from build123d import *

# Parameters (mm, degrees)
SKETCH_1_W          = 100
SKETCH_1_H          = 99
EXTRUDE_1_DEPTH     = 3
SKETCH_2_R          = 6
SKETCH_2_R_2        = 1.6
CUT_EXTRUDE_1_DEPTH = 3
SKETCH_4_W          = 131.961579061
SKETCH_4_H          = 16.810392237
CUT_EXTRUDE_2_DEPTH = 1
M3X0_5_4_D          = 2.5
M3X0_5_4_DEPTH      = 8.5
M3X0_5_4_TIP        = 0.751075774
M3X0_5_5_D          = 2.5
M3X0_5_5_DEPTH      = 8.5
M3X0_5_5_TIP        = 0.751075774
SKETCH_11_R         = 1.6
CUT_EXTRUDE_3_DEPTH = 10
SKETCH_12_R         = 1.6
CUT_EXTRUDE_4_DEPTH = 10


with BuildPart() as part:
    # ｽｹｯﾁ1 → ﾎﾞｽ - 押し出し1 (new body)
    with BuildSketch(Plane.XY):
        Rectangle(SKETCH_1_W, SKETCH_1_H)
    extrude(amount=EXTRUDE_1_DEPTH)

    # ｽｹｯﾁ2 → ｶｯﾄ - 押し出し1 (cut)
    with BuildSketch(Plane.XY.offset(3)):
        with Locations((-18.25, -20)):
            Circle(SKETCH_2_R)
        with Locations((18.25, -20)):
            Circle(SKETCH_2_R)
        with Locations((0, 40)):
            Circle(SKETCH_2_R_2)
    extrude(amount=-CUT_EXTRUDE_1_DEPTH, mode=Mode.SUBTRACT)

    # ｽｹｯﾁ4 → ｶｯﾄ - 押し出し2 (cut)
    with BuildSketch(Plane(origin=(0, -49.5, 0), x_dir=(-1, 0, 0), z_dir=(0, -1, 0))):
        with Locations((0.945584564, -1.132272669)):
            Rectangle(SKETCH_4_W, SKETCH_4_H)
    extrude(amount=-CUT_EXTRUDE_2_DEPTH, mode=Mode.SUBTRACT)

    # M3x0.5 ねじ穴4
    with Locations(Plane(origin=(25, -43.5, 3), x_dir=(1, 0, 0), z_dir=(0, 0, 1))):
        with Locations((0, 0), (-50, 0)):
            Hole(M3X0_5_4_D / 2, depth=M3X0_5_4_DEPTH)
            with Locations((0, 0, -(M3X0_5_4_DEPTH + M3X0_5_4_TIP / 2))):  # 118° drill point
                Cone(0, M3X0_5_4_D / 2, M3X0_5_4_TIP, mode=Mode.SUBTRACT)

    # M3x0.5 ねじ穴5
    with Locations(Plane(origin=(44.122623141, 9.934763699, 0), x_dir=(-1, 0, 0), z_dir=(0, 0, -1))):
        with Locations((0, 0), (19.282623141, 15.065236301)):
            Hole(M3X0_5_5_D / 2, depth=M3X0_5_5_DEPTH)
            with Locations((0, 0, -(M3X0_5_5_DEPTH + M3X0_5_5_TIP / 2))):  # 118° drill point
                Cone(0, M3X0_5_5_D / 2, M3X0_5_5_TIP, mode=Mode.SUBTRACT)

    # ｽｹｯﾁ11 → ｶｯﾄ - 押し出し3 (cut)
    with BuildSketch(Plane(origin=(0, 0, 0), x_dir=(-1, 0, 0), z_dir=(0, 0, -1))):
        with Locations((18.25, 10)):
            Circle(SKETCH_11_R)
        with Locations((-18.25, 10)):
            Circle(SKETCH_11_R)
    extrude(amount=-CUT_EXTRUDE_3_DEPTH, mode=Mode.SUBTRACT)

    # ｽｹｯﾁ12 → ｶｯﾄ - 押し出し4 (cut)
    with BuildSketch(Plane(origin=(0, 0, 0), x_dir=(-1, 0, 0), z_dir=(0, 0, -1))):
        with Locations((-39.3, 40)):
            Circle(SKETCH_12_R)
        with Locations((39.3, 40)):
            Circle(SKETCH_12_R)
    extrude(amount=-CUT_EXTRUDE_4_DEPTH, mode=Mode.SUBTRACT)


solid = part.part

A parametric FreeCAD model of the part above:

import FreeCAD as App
import Part
import Sketcher

V = App.Vector
Q = App.Units.Quantity

doc = App.newDocument("Part")
body = doc.addObject("PartDesign::Body", "Body")

# Sketch on XY plane
sketch1 = body.newObject("Sketcher::SketchObject", "Sketch")
sketch1.AttachmentSupport = (doc.getObject("XY_Plane"), [""])
sketch1.MapMode = "FlatFace"
sketch1.addGeometry(Part.LineSegment(V(-50, 50, 0), V(-50, -50, 0)), False)
sketch1.addGeometry(Part.LineSegment(V(-50, -50, 0), V(50, -50, 0)), False)
sketch1.addGeometry(Part.LineSegment(V(50, -50, 0), V(50, 50, 0)), False)
sketch1.addGeometry(Part.LineSegment(V(50, 50, 0), V(-50, 50, 0)), False)
sketch1.addConstraint(Sketcher.Constraint("Coincident", 0, 2, 1, 1))
sketch1.addConstraint(Sketcher.Constraint("Coincident", 1, 2, 2, 1))
sketch1.addConstraint(Sketcher.Constraint("Coincident", 2, 2, 3, 1))
sketch1.addConstraint(Sketcher.Constraint("Coincident", 3, 2, 0, 1))
sketch1.addConstraint(Sketcher.Constraint("Vertical", 0))
sketch1.addConstraint(Sketcher.Constraint("Horizontal", 1))
sketch1.addConstraint(Sketcher.Constraint("Vertical", 2))
sketch1.addConstraint(Sketcher.Constraint("Horizontal", 3))
sketch1.addConstraint(Sketcher.Constraint("Symmetric", 0, 2, 2, 2, -1, 1))
sketch1.addConstraint(Sketcher.Constraint("DistanceX", 1, 1, 1, 2, Q("100 mm")))
sketch1.addConstraint(Sketcher.Constraint("DistanceY", 0, 2, 0, 1, Q("99 mm")))
pad1 = body.newObject("PartDesign::Pad", "Pad")
pad1.Profile = sketch1
pad1.Length = 3

# Sketch on XY plane
sketch2 = body.newObject("Sketcher::SketchObject", "Sketch001")
sketch2.AttachmentSupport = (doc.getObject("XY_Plane"), [""])
sketch2.MapMode = "FlatFace"
sketch2.AttachmentOffset = App.Placement(V(0, 0, 3), App.Rotation())
sketch2.addGeometry(Part.Circle(V(-18.2, -20, 0), V(0, 0, 1), 6), False)
sketch2.addGeometry(Part.Circle(V(18.2, -20, 0), V(0, 0, 1), 6), False)
sketch2.addGeometry(Part.Circle(V(0, 40, 0), V(0, 0, 1), 1.6), False)
sketch2.addConstraint(Sketcher.Constraint("Equal", 0, 1))
sketch2.addConstraint(Sketcher.Constraint("Symmetric", 0, 3, 1, 3, -2))
sketch2.addConstraint(Sketcher.Constraint("PointOnObject", 2, 3, -2))
sketch2.addConstraint(Sketcher.Constraint("Diameter", 0, Q("12 mm")))
sketch2.addConstraint(Sketcher.Constraint("Diameter", 2, Q("3.2 mm")))
sketch2.addConstraint(Sketcher.Constraint("DistanceY", 0, 3, -1, 1, Q("20 mm")))
sketch2.addConstraint(Sketcher.Constraint("DistanceY", -1, 1, 2, 3, Q("40 mm")))
sketch2.addConstraint(Sketcher.Constraint("DistanceX", 0, 3, 1, 3, Q("36.5 mm")))
pocket1 = body.newObject("PartDesign::Pocket", "Pocket")
pocket1.Profile = sketch2
pocket1.Length = 3

# Sketch on XZ plane
sketch3 = body.newObject("Sketcher::SketchObject", "Sketch002")
sketch3.AttachmentSupport = (doc.getObject("XZ_Plane"), [""])
sketch3.MapMode = "FlatFace"
sketch3.AttachmentOffset = App.Placement(V(0, 0, 49.5), App.Rotation())
sketch3.addGeometry(Part.LineSegment(V(65, -7, 0), V(65, 10, 0)), False)
sketch3.addGeometry(Part.LineSegment(V(65, 10, 0), V(-67, 10, 0)), False)
sketch3.addGeometry(Part.LineSegment(V(-67, 10, 0), V(-67, -7, 0)), False)
sketch3.addGeometry(Part.LineSegment(V(-67, -7, 0), V(65, -7, 0)), False)
sketch3.addConstraint(Sketcher.Constraint("Coincident", 0, 2, 1, 1))
sketch3.addConstraint(Sketcher.Constraint("Coincident", 1, 2, 2, 1))
sketch3.addConstraint(Sketcher.Constraint("Coincident", 2, 2, 3, 1))
sketch3.addConstraint(Sketcher.Constraint("Coincident", 3, 2, 0, 1))
sketch3.addConstraint(Sketcher.Constraint("Vertical", 0))
sketch3.addConstraint(Sketcher.Constraint("Horizontal", 1))
sketch3.addConstraint(Sketcher.Constraint("Vertical", 2))
sketch3.addConstraint(Sketcher.Constraint("Horizontal", 3))
sketch3.addConstraint(Sketcher.Constraint("DistanceX", 1, 2, 1, 1, Q("131.961579 mm")))
sketch3.addConstraint(Sketcher.Constraint("DistanceY", 0, 1, 0, 2, Q("16.810392 mm")))
sketch3.addConstraint(Sketcher.Constraint("DistanceY", -1, 1, 0, 2, Q("9.537469 mm")))
sketch3.addConstraint(Sketcher.Constraint("DistanceX", -1, 1, 0, 2, Q("65.035205 mm")))
pocket2 = body.newObject("PartDesign::Pocket", "Pocket001")
pocket2.Profile = sketch3
pocket2.Length = 1

# Sketch on XY plane
sketch4 = body.newObject("Sketcher::SketchObject", "Sketch003")
sketch4.AttachmentSupport = (doc.getObject("XY_Plane"), [""])
sketch4.MapMode = "FlatFace"
sketch4.AttachmentOffset = App.Placement(V(0, 0, 3), App.Rotation())
sketch4.addGeometry(Part.Circle(V(25, -43.5, 0), V(0, 0, 1), 1.2), False)
sketch4.addGeometry(Part.Circle(V(-25, -43.5, 0), V(0, 0, 1), 1.2), False)
sketch4.addConstraint(Sketcher.Constraint("Equal", 0, 1))
sketch4.addConstraint(Sketcher.Constraint("Symmetric", 0, 3, 1, 3, -2))
sketch4.addConstraint(Sketcher.Constraint("Diameter", 0, Q("2.5 mm")))
sketch4.addConstraint(Sketcher.Constraint("DistanceX", -1, 1, 0, 3, Q("25 mm")))
sketch4.addConstraint(Sketcher.Constraint("DistanceY", 0, 3, -1, 1, Q("43.5 mm")))
doc.recompute()
hole = body.newObject("PartDesign::Hole", "Hole")
hole.Profile = sketch4
hole.ThreadType = "None"
hole.Diameter = 2.5
hole.DepthType = "Dimension"
hole.Depth = 8.5
hole.DrillPoint = "Angled"
hole.DrillPointAngle = 118

# Sketch on XY plane
sketch5 = body.newObject("Sketcher::SketchObject", "Sketch004")
sketch5.AttachmentSupport = (doc.getObject("XY_Plane"), [""])
sketch5.MapMode = "FlatFace"
sketch5.addGeometry(Part.Circle(V(44.1, 9.9, 0), V(0, 0, 1), 1.2), False)
sketch5.addGeometry(Part.Circle(V(24.8, 25, 0), V(0, 0, 1), 1.2), False)
sketch5.addConstraint(Sketcher.Constraint("Equal", 0, 1))
sketch5.addConstraint(Sketcher.Constraint("Diameter", 0, Q("2.5 mm")))
sketch5.addConstraint(Sketcher.Constraint("DistanceY", -1, 1, 1, 3, Q("25 mm")))
sketch5.addConstraint(Sketcher.Constraint("DistanceX", -1, 1, 1, 3, Q("24.84 mm")))
sketch5.addConstraint(Sketcher.Constraint("DistanceX", -1, 1, 0, 3, Q("44.122623 mm")))
sketch5.addConstraint(Sketcher.Constraint("DistanceY", -1, 1, 0, 3, Q("9.934764 mm")))
doc.recompute()
hole2 = body.newObject("PartDesign::Hole", "Hole001")
hole2.Profile = sketch5
hole2.ThreadType = "None"
hole2.Diameter = 2.5
hole2.DepthType = "Dimension"
hole2.Depth = 8.5
hole2.DrillPoint = "Angled"
hole2.DrillPointAngle = 118
hole2.Reversed = True

# Sketch on XY plane
sketch6 = body.newObject("Sketcher::SketchObject", "Sketch005")
sketch6.AttachmentSupport = (doc.getObject("XY_Plane"), [""])
sketch6.MapMode = "FlatFace"
sketch6.addGeometry(Part.Circle(V(-18.2, 10, 0), V(0, 0, 1), 1.6), False)
sketch6.addGeometry(Part.Circle(V(18.2, 10, 0), V(0, 0, 1), 1.6), False)
sketch6.addConstraint(Sketcher.Constraint("Equal", 0, 1))
sketch6.addConstraint(Sketcher.Constraint("Symmetric", 0, 3, 1, 3, -2))
sketch6.addConstraint(Sketcher.Constraint("Diameter", 0, Q("3.2 mm")))
sketch6.addConstraint(Sketcher.Constraint("DistanceY", -1, 1, 0, 3, Q("10 mm")))
sketch6.addConstraint(Sketcher.Constraint("DistanceX", 0, 3, 1, 3, Q("36.5 mm")))
pocket3 = body.newObject("PartDesign::Pocket", "Pocket002")
pocket3.Profile = sketch6
pocket3.Length = 10
pocket3.Reversed = True

# Sketch on XY plane
sketch7 = body.newObject("Sketcher::SketchObject", "Sketch006")
sketch7.AttachmentSupport = (doc.getObject("XY_Plane"), [""])
sketch7.MapMode = "FlatFace"
sketch7.addGeometry(Part.Circle(V(39.3, 40, 0), V(0, 0, 1), 1.6), False)
sketch7.addGeometry(Part.Circle(V(-39.3, 40, 0), V(0, 0, 1), 1.6), False)
sketch7.addConstraint(Sketcher.Constraint("Equal", 0, 1))
sketch7.addConstraint(Sketcher.Constraint("Symmetric", 0, 3, 1, 3, -2))
sketch7.addConstraint(Sketcher.Constraint("Diameter", 0, Q("3.2 mm")))
sketch7.addConstraint(Sketcher.Constraint("DistanceY", -1, 1, 0, 3, Q("40 mm")))
sketch7.addConstraint(Sketcher.Constraint("DistanceX", -1, 1, 0, 3, Q("39.3 mm")))
pocket4 = body.newObject("PartDesign::Pocket", "Pocket003")
pocket4.Profile = sketch7
pocket4.Length = 10
pocket4.Reversed = True

doc.recompute()
